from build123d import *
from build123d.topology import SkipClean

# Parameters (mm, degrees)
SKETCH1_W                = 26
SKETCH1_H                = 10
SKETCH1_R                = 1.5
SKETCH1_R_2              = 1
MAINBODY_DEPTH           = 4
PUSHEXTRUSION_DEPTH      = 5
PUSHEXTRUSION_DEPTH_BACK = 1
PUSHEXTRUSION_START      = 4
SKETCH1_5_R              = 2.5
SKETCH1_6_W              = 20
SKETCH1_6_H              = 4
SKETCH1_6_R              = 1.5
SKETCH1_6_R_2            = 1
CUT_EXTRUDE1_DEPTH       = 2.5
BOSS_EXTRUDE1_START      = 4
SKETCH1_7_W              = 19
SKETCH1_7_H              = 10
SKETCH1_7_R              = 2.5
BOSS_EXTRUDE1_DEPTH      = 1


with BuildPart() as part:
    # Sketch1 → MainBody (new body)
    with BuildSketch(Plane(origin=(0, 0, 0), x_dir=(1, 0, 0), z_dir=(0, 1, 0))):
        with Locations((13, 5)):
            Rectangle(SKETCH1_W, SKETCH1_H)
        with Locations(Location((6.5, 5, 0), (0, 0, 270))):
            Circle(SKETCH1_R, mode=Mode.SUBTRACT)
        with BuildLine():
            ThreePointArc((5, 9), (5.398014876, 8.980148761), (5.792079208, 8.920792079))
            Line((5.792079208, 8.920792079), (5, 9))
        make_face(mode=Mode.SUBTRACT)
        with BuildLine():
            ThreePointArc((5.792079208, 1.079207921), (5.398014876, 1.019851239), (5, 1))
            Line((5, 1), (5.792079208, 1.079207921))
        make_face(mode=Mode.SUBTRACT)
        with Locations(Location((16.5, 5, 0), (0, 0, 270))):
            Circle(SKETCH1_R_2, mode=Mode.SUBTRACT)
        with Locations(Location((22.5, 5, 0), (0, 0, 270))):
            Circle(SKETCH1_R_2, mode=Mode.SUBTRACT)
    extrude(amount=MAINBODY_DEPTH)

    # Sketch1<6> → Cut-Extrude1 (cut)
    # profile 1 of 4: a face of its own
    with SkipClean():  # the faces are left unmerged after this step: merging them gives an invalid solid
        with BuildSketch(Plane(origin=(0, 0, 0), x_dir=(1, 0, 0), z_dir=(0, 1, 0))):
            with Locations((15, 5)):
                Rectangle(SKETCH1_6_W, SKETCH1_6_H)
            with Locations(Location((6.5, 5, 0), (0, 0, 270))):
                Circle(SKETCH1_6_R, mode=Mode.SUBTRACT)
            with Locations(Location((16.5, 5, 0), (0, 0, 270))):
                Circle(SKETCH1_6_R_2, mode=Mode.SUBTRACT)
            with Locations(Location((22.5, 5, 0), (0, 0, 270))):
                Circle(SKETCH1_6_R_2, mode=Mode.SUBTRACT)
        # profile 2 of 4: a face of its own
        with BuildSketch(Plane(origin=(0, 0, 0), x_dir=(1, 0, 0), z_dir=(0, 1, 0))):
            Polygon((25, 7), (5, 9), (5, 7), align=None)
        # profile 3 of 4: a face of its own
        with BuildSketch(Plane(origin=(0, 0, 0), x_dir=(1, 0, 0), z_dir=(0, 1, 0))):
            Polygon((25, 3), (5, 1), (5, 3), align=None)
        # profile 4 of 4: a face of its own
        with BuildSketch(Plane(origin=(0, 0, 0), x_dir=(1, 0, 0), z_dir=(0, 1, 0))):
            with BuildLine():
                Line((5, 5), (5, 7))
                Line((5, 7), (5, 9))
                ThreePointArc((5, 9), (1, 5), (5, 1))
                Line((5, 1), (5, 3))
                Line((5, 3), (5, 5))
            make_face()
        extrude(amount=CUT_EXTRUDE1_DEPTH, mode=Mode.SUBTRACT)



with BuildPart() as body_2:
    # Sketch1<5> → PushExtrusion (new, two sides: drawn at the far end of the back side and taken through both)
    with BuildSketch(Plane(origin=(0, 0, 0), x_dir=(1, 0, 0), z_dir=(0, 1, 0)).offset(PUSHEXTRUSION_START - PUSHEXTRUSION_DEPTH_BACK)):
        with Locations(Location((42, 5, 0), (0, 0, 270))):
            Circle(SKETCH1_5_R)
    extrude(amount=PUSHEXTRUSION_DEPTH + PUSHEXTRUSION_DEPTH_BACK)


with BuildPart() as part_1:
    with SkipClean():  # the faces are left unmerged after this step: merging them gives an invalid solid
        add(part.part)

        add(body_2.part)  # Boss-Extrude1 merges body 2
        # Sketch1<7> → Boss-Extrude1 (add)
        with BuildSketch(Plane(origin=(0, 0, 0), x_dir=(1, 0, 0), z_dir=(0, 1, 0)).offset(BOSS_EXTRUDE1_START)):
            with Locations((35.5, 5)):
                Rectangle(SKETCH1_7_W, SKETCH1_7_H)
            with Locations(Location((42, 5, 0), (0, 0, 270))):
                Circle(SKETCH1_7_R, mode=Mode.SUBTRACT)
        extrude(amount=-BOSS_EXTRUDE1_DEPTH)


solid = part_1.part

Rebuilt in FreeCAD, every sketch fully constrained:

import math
import FreeCAD as App
import Part
import Sketcher
from FreeCAD import Vector
Q = App.Units.Quantity

doc = App.newDocument("Part")
body = doc.addObject("PartDesign::Body", "Body")

sketch1 = body.newObject("Sketcher::SketchObject", "Sketch")
sketch1.AttachmentSupport = (doc.getObject("XZ_Plane"), [""])
sketch1.MapMode = "FlatFace"
sketch1.addGeometry(Part.LineSegment(Vector(0, -10, 0), Vector(0, 0, 0)), False)
sketch1.addGeometry(Part.LineSegment(Vector(0, 0, 0), Vector(26, 0, 0)), False)
sketch1.addGeometry(Part.LineSegment(Vector(26, 0, 0), Vector(26, -10, 0)), False)
sketch1.addGeometry(Part.LineSegment(Vector(26, -10, 0), Vector(0, -10, 0)), False)
sketch1.addGeometry(Part.LineSegment(Vector(5, -1, 0), Vector(5.792079, -1.079208, 0)), False)
sketch1.addGeometry(Part.ArcOfCircle(Part.Circle(Vector(5, -5, 0), Vector(0, 0, 1), 4), math.radians(78.578814), math.radians(90)), False)
sketch1.addGeometry(Part.Circle(Vector(6.5, -5, 0), Vector(0, 0, 1), 1.5), False)
sketch1.addGeometry(Part.LineSegment(Vector(5.792079, -8.920792, 0), Vector(5, -9, 0)), False)
sketch1.addGeometry(Part.ArcOfCircle(Part.Circle(Vector(5, -5, 0), Vector(0, 0, 1), 4), math.radians(-90), math.radians(-78.578814)), False)
sketch1.addGeometry(Part.Circle(Vector(16.5, -5, 0), Vector(0, 0, 1), 1), False)
sketch1.addGeometry(Part.Circle(Vector(22.5, -5, 0), Vector(0, 0, 1), 1), False)
sketch1.addConstraint(Sketcher.Constraint("Coincident", 0, 2, 1, 1))
sketch1.addConstraint(Sketcher.Constraint("Coincident", 1, 2, 2, 1))
sketch1.addConstraint(Sketcher.Constraint("Coincident", 2, 2, 3, 1))
sketch1.addConstraint(Sketcher.Constraint("Coincident", 3, 2, 0, 1))
sketch1.addConstraint(Sketcher.Constraint("Coincident", 4, 1, 5, 2))
sketch1.addConstraint(Sketcher.Constraint("Coincident", 5, 1, 4, 2))
sketch1.addConstraint(Sketcher.Constraint("Coincident", 7, 1, 8, 2))
sketch1.addConstraint(Sketcher.Constraint("Coincident", 8, 1, 7, 2))
sketch1.addConstraint(Sketcher.Constraint("Vertical", 0))
sketch1.addConstraint(Sketcher.Constraint("Horizontal", 1))
sketch1.addConstraint(Sketcher.Constraint("Vertical", 2))
sketch1.addConstraint(Sketcher.Constraint("Horizontal", 3))
sketch1.addConstraint(Sketcher.Constraint("Coincident", 0, 2, -1, 1))
sketch1.addConstraint(Sketcher.Constraint("Coincident", 8, 3, 5, 3))
sketch1.addConstraint(Sketcher.Constraint("Equal", 5, 8))
sketch1.addConstraint(Sketcher.Constraint("Equal", 9, 10))
sketch1.addConstraint(Sketcher.Constraint("Horizontal", 5, 3, 6, 3))
sketch1.addConstraint(Sketcher.Constraint("Horizontal", 8, 3, 9, 3))
sketch1.addConstraint(Sketcher.Constraint("Horizontal", 9, 3, 10, 3))
sketch1.addConstraint(Sketcher.Constraint("Vertical", 8, 3, 4, 1))
sketch1.addConstraint(Sketcher.Constraint("Vertical", 5, 1, 7, 1))
sketch1.addConstraint(Sketcher.Constraint("Vertical", 4, 1, 8, 1))
sketch1.addConstraint(Sketcher.Constraint("Diameter", 6, Q("3 mm")))
sketch1.addConstraint(Sketcher.Constraint("Diameter", 9, Q("2 mm")))
sketch1.addConstraint(Sketcher.Constraint("Radius", 5, Q("4 mm")))
sketch1.addConstraint(Sketcher.Constraint("DistanceX", 1, 1, 1, 2, Q("26 mm")))
sketch1.addConstraint(Sketcher.Constraint("DistanceY", 0, 1, 0, 2, Q("10 mm")))
sketch1.addConstraint(Sketcher.Constraint("DistanceX", -1, 1, 5, 3, Q("5 mm")))
sketch1.addConstraint(Sketcher.Constraint("DistanceY", 5, 3, -1, 1, Q("5 mm")))
sketch1.addConstraint(Sketcher.Constraint("DistanceX", 6, 3, 9, 3, Q("10 mm")))
sketch1.addConstraint(Sketcher.Constraint("DistanceX", 9, 3, 10, 3, Q("6 mm")))
sketch1.addConstraint(Sketcher.Constraint("DistanceX", -1, 1, 6, 3, Q("6.5 mm")))
sketch1.addConstraint(Sketcher.Constraint("Distance", 4, Q("0.79603 mm")))
pad1 = body.newObject("PartDesign::Pad", "Pad")
pad1.Profile = sketch1
pad1.Length = 4
pad1.Reversed = True

sketch2 = body.newObject("Sketcher::SketchObject", "Sketch001")
sketch2.AttachmentSupport = (doc.getObject("XZ_Plane"), [""])
sketch2.MapMode = "FlatFace"
sketch2.addGeometry(Part.LineSegment(Vector(25, -3, 0), Vector(25, -7, 0)), False)
sketch2.addGeometry(Part.LineSegment(Vector(25, -7, 0), Vector(5, -9, 0)), False)
sketch2.addGeometry(Part.ArcOfCircle(Part.Circle(Vector(5, -5, 0), Vector(0, 0, 1), 4), math.radians(90), math.radians(270)), False)
sketch2.addGeometry(Part.LineSegment(Vector(5, -1, 0), Vector(25, -3, 0)), False)
sketch2.addGeometry(Part.Circle(Vector(6.5, -5, 0), Vector(0, 0, 1), 1.5), False)
sketch2.addGeometry(Part.Circle(Vector(16.5, -5, 0), Vector(0, 0, 1), 1), False)
sketch2.addGeometry(Part.Circle(Vector(22.5, -5, 0), Vector(0, 0, 1), 1), False)
sketch2.addConstraint(Sketcher.Constraint("Coincident", 0, 2, 1, 1))
sketch2.addConstraint(Sketcher.Constraint("Coincident", 1, 2, 2, 2))
sketch2.addConstraint(Sketcher.Constraint("Coincident", 2, 1, 3, 1))
sketch2.addConstraint(Sketcher.Constraint("Coincident", 3, 2, 0, 1))
sketch2.addConstraint(Sketcher.Constraint("Vertical", 0))
sketch2.addConstraint(Sketcher.Constraint("Equal", 5, 6))
sketch2.addConstraint(Sketcher.Constraint("Horizontal", 2, 3, 4, 3))
sketch2.addConstraint(Sketcher.Constraint("Horizontal", 4, 3, 5, 3))
sketch2.addConstraint(Sketcher.Constraint("Horizontal", 5, 3, 6, 3))
sketch2.addConstraint(Sketcher.Constraint("Vertical", 2, 3, 1, 2))
sketch2.addConstraint(Sketcher.Constraint("Vertical", 1, 2, 2, 1))
sketch2.addConstraint(Sketcher.Constraint("Equal", 1, 3))
sketch2.addConstraint(Sketcher.Constraint("Diameter", 4, Q("3 mm")))
sketch2.addConstraint(Sketcher.Constraint("Diameter", 5, Q("2 mm")))
sketch2.addConstraint(Sketcher.Constraint("Radius", 2, Q("4 mm")))
sketch2.addConstraint(Sketcher.Constraint("DistanceY", 0, 2, 0, 1, Q("4 mm")))
sketch2.addConstraint(Sketcher.Constraint("DistanceX", -1, 1, 2, 3, Q("5 mm")))
sketch2.addConstraint(Sketcher.Constraint("DistanceY", 2, 3, -1, 1, Q("5 mm")))
sketch2.addConstraint(Sketcher.Constraint("DistanceX", -1, 1, 0, 2, Q("25 mm")))
sketch2.addConstraint(Sketcher.Constraint("DistanceX", 4, 3, 5, 3, Q("10 mm")))
sketch2.addConstraint(Sketcher.Constraint("DistanceX", 5, 3, 6, 3, Q("6 mm")))
sketch2.addConstraint(Sketcher.Constraint("DistanceX", -1, 1, 4, 3, Q("6.5 mm")))
pocket1 = body.newObject("PartDesign::Pocket", "Pocket")
pocket1.Profile = sketch2
pocket1.Length = 2.5
body2 = doc.addObject("PartDesign::Body", "Body001")

sketch3 = body2.newObject("Sketcher::SketchObject", "Sketch002")
sketch3.AttachmentSupport = (doc.getObject("XZ_Plane001"), [""])
sketch3.MapMode = "FlatFace"
sketch3.AttachmentOffset = App.Placement(Vector(0, 0, -4), App.Rotation())
sketch3.addGeometry(Part.Circle(Vector(42, -5, 0), Vector(0, 0, 1), 2.5), False)
sketch3.addConstraint(Sketcher.Constraint("Diameter", 0, Q("5 mm")))
sketch3.addConstraint(Sketcher.Constraint("DistanceX", -1, 1, 0, 3, Q("42 mm")))
sketch3.addConstraint(Sketcher.Constraint("DistanceY", 0, 3, -1, 1, Q("5 mm")))
pad2 = body2.newObject("PartDesign::Pad", "Pad001")
pad2.Profile = sketch3
pad2.Type = "TwoLengths"
pad2.Length = 5
pad2.Length2 = 1
pad2.Reversed = True
body.AllowCompound = True
doc.recompute()

boolean = body.newObject("PartDesign::Boolean", "Boolean")
boolean.Type = "Fuse"
boolean.addObjects([body2])

sketch4 = body.newObject("Sketcher::SketchObject", "Sketch003")
sketch4.AttachmentSupport = (doc.getObject("XZ_Plane"), [""])
sketch4.MapMode = "FlatFace"
sketch4.AttachmentOffset = App.Placement(Vector(0, 0, -4), App.Rotation())
sketch4.addGeometry(Part.LineSegment(Vector(26, -10, 0), Vector(26, 0, 0)), False)
sketch4.addGeometry(Part.LineSegment(Vector(26, 0, 0), Vector(45, 0, 0)), False)
sketch4.addGeometry(Part.LineSegment(Vector(45, 0, 0), Vector(45, -10, 0)), False)
sketch4.addGeometry(Part.LineSegment(Vector(45, -10, 0), Vector(26, -10, 0)), False)
sketch4.addGeometry(Part.Circle(Vector(42, -5, 0), Vector(0, 0, 1), 2.5), False)
sketch4.addConstraint(Sketcher.Constraint("Coincident", 0, 2, 1, 1))
sketch4.addConstraint(Sketcher.Constraint("Coincident", 1, 2, 2, 1))
sketch4.addConstraint(Sketcher.Constraint("Coincident", 2, 2, 3, 1))
sketch4.addConstraint(Sketcher.Constraint("Coincident", 3, 2, 0, 1))
sketch4.addConstraint(Sketcher.Constraint("Vertical", 0))
sketch4.addConstraint(Sketcher.Constraint("Horizontal", 1))
sketch4.addConstraint(Sketcher.Constraint("Vertical", 2))
sketch4.addConstraint(Sketcher.Constraint("Horizontal", 3))
sketch4.addConstraint(Sketcher.Constraint("PointOnObject", 0, 2, -1))
sketch4.addConstraint(Sketcher.Constraint("Diameter", 4, Q("5 mm")))
sketch4.addConstraint(Sketcher.Constraint("DistanceX", 1, 1, 1, 2, Q("19 mm")))
sketch4.addConstraint(Sketcher.Constraint("DistanceY", 0, 1, 0, 2, Q("10 mm")))
sketch4.addConstraint(Sketcher.Constraint("DistanceX", -1, 1, 4, 3, Q("42 mm")))
sketch4.addConstraint(Sketcher.Constraint("DistanceY", 4, 3, -1, 1, Q("5 mm")))
sketch4.addConstraint(Sketcher.Constraint("DistanceX", -1, 1, 0, 2, Q("26 mm")))
pad3 = body.newObject("PartDesign::Pad", "Pad002")
pad3.Profile = sketch4
pad3.Length = 1

doc.recompute()
